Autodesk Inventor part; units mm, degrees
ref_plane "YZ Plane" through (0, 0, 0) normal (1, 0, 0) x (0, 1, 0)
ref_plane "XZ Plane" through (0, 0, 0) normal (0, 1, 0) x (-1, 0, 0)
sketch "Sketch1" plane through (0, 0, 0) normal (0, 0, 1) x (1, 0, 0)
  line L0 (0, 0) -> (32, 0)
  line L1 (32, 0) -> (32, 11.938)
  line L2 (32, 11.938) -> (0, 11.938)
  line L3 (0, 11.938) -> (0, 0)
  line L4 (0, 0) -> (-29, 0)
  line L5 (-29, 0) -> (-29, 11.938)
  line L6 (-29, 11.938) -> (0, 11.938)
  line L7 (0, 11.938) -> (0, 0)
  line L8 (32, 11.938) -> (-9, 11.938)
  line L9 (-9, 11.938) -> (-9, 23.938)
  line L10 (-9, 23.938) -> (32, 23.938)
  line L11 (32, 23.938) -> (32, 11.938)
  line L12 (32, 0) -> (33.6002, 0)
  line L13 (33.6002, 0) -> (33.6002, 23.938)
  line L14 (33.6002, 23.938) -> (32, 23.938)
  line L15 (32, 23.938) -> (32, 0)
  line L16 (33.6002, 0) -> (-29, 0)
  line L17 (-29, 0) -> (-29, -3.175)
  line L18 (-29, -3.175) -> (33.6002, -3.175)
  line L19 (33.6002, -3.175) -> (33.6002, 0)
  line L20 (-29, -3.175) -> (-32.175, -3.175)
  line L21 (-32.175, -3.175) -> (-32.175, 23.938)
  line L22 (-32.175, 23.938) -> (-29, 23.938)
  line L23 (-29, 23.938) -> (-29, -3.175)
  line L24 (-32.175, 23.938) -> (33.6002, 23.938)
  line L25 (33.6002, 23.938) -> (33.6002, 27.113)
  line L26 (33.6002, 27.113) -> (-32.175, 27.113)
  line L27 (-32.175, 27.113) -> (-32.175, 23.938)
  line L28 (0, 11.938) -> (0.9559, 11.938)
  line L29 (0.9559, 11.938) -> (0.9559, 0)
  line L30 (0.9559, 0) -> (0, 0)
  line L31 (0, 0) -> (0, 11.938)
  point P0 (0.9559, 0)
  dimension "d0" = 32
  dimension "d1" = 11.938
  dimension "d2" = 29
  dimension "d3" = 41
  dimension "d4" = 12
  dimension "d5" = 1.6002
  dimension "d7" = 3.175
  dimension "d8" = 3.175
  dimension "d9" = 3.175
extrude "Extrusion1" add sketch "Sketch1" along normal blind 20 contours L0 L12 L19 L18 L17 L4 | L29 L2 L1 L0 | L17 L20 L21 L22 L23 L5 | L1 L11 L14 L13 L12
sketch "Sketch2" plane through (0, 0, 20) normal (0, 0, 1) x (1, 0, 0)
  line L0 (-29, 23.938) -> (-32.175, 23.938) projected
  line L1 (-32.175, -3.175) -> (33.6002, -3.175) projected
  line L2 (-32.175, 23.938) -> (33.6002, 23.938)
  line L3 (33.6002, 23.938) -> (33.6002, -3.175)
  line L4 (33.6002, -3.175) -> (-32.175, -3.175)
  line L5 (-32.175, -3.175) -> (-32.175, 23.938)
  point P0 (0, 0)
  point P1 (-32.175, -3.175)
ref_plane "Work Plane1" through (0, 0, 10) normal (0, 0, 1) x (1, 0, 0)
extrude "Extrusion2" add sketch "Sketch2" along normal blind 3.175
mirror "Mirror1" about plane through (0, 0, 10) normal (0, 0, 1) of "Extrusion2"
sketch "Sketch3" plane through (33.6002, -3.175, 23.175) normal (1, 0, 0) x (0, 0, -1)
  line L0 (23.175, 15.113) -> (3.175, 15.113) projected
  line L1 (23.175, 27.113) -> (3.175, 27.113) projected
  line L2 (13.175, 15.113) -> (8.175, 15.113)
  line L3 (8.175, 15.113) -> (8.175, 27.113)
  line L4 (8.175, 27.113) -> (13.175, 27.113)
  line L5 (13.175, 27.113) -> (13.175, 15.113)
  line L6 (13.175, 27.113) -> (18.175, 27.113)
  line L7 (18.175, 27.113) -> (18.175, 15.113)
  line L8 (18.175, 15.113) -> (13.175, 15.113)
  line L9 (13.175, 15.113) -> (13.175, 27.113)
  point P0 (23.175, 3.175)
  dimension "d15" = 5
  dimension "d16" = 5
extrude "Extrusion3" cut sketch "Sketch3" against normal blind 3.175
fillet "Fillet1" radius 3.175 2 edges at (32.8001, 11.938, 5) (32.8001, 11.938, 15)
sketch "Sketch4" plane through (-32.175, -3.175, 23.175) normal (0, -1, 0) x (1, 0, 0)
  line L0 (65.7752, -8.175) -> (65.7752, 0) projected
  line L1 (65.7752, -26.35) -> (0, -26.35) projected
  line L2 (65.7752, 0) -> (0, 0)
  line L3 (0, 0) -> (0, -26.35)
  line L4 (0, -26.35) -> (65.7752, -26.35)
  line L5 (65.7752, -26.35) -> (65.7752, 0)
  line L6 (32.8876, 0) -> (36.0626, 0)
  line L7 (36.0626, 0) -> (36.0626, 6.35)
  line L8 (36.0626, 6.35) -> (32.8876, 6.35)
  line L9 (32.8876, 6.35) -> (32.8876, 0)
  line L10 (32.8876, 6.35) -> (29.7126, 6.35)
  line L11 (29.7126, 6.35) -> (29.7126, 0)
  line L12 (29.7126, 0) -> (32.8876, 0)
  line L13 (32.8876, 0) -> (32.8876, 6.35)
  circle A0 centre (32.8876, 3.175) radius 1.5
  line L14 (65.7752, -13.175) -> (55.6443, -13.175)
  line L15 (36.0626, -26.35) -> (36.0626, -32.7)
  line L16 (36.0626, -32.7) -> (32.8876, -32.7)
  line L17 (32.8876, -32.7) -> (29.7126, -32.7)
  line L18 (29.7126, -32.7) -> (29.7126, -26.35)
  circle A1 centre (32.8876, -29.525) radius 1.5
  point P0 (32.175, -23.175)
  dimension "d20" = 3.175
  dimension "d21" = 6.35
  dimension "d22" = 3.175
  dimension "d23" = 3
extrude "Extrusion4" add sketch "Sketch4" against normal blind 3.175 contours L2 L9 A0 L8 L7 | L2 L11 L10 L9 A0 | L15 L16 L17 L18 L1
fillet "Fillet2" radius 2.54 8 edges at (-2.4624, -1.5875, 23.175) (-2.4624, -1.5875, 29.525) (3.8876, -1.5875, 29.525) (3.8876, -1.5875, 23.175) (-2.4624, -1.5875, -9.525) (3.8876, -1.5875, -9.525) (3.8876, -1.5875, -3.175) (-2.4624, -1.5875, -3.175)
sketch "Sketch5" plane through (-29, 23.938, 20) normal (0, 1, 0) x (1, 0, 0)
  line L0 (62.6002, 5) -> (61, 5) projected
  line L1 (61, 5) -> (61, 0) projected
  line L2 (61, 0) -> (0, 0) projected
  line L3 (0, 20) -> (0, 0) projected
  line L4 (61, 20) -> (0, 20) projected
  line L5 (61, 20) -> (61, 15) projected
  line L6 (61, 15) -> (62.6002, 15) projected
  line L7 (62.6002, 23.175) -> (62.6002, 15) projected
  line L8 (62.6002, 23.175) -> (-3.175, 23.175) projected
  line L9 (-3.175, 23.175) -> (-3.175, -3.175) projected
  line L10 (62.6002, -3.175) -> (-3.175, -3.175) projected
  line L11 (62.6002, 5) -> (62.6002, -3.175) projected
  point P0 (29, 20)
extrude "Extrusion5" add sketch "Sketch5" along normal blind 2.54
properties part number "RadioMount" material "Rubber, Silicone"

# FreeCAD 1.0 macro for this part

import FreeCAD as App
import Part
import Sketcher
Q = App.Units.Quantity


def edges_at(feature, points):
    """Names of the edges that pass closest to the given points."""
    edges = feature.Shape.Edges
    near = lambda p: min(range(len(edges)), key=lambda i: edges[i].distToShape(Part.Vertex(*p))[0])
    return sorted({f"Edge{near(p) + 1}" for p in points})


def add_polygon(sketch, points):
    """Adds a closed chain of lines whose ends are joined by coincident constraints."""
    first, n = sketch.GeometryCount, len(points)
    for a, b in zip(points, points[1:] + points[:1]):
        sketch.addGeometry(Part.LineSegment(App.Vector(*a, 0), App.Vector(*b, 0)), False)
    for i in range(n):
        sketch.addConstraint(Sketcher.Constraint("Coincident", first + i, 2, first + (i + 1) % n, 1))

doc = App.newDocument("Part")
body = doc.addObject("PartDesign::Body", "Body")

sketch1 = doc.addObject("Sketcher::SketchObject", "Sketch")
body.addObject(sketch1)
sketch1.AttachmentSupport = (doc.XY_Plane, [""])
sketch1.MapMode = "FlatFace"
add_polygon(sketch1, [(0.9559, 0), (-29, 0), (-29, 23.938), (-32.175, 23.938), (-32.175, -3.175), (33.6002, -3.175), (33.6002, 23.938), (32, 23.938), (32, 11.938), (0.9559, 11.938)])
sketch1.addConstraint([
    Sketcher.Constraint("Horizontal", 0),
    Sketcher.Constraint("Vertical", 1),
    Sketcher.Constraint("Horizontal", 2),
    Sketcher.Constraint("Vertical", 3),
    Sketcher.Constraint("Horizontal", 4),
    Sketcher.Constraint("Vertical", 5),
    Sketcher.Constraint("Horizontal", 6),
    Sketcher.Constraint("Vertical", 7),
    Sketcher.Constraint("Horizontal", 8),
    Sketcher.Constraint("Vertical", 9),
    Sketcher.Constraint("PointOnObject", 0, 2, -1),
    Sketcher.Constraint("Horizontal", 2, 2, 5, 2),
    Sketcher.Constraint("DistanceY", 9, 2, 9, 1, Q("0.47 in")),
    Sketcher.Constraint("DistanceX", 2, 2, 2, 1, Q("0.125 in")),
    Sketcher.Constraint("DistanceX", 6, 2, 6, 1, Q("0.063 in")),
    Sketcher.Constraint("DistanceY", 3, 2, -1, 1, Q("0.125 in")),
    Sketcher.Constraint("DistanceY", 7, 2, 7, 1, 12.0),
    Sketcher.Constraint("DistanceX", 0, 2, -1, 1, 29.0),
    Sketcher.Constraint("DistanceX", -1, 1, 6, 2, 32.0),
    Sketcher.Constraint("DistanceX", 8, 2, 8, 1, Q("1.2222 in")),
])
pad1 = doc.addObject("PartDesign::Pad", "Pad")
body.addObject(pad1)
pad1.Profile = sketch1
pad1.Length = Q("0.7874016 in")

sketch2 = doc.addObject("Sketcher::SketchObject", "Sketch001")
body.addObject(sketch2)
sketch2.AttachmentSupport = (doc.XY_Plane, [""])
sketch2.MapMode = "FlatFace"
sketch2.AttachmentOffset = App.Placement(App.Vector(0, 0, 0.7874016 * 25.4), App.Rotation())
add_polygon(sketch2, [(33.6002, 23.938), (-32.175, 23.938), (-32.175, -3.175), (33.6002, -3.175)])
sketch2.addConstraint([
    Sketcher.Constraint("Horizontal", 0),
    Sketcher.Constraint("Vertical", 1),
    Sketcher.Constraint("Horizontal", 2),
    Sketcher.Constraint("Vertical", 3),
    Sketcher.Constraint("DistanceY", 1, 2, -1, 1, Q("0.125 in")),
    Sketcher.Constraint("DistanceX", 0, 2, 0, 1, 65.7752),
    Sketcher.Constraint("DistanceY", 1, 2, 1, 1, 27.113),
    Sketcher.Constraint("DistanceX", 0, 2, -1, 1, 32.175),
])
pad2 = doc.addObject("PartDesign::Pad", "Pad001")
body.addObject(pad2)
pad2.Profile = sketch2
pad2.Length = Q("0.125 in")
doc.recompute()

datumplane = doc.addObject("PartDesign::Plane", "DatumPlane")
body.addObject(datumplane)
datumplane.AttachmentSupport = (doc.XY_Plane, [""])
datumplane.MapMode = "FlatFace"
datumplane.AttachmentOffset = App.Placement(App.Vector(0, 0, 0.3937008 * 25.4), App.Rotation())
mirrored = doc.addObject("PartDesign::Mirrored", "Mirrored")
body.addObject(mirrored)
mirrored.Originals = [pad2]
mirrored.MirrorPlane = (datumplane, [""])
body.Tip = mirrored

sketch3 = doc.addObject("Sketcher::SketchObject", "Sketch002")
body.addObject(sketch3)
sketch3.AttachmentSupport = (doc.YZ_Plane, [""])
sketch3.MapMode = "FlatFace"
sketch3.AttachmentOffset = App.Placement(App.Vector(0, 0, 33.6002), App.Rotation())
add_polygon(sketch3, [(11.938, 5), (23.938, 5), (23.938, 15), (11.938, 15)])
sketch3.addConstraint([
    Sketcher.Constraint("Horizontal", 0),
    Sketcher.Constraint("Vertical", 1),
    Sketcher.Constraint("Horizontal", 2),
    Sketcher.Constraint("Vertical", 3),
    Sketcher.Constraint("DistanceY", -1, 1, 0, 2, 5.0),
    Sketcher.Constraint("DistanceX", -1, 1, 2, 2, Q("0.47 in")),
    Sketcher.Constraint("DistanceY", 1, 1, 1, 2, Q("0.3937 in")),
    Sketcher.Constraint("DistanceX", 0, 1, 0, 2, 12.0),
])
pocket1 = doc.addObject("PartDesign::Pocket", "Pocket")
body.addObject(pocket1)
pocket1.Profile = sketch3
pocket1.Length = Q("0.125 in")
doc.recompute()

fillet = doc.addObject("PartDesign::Fillet", "Fillet")
body.addObject(fillet)
fillet.Base = (pocket1, edges_at(pocket1, [(32.8, 11.938, 5), (32.8, 11.938, 15)]))
fillet.Radius = Q("0.125 in")

sketch4 = doc.addObject("Sketcher::SketchObject", "Sketch003")
body.addObject(sketch4)
sketch4.AttachmentSupport = (doc.XZ_Plane, [""])
sketch4.MapMode = "FlatFace"
sketch4.AttachmentOffset = App.Placement(App.Vector(0, 0, 0.125 * 25.4), App.Rotation())
add_polygon(sketch4, [(3.8876, 23.175), (3.8876, 29.525), (-2.4624, 29.525), (-2.4624, 23.175)])
sketch4.addGeometry(Part.Circle(App.Vector(0.7126, 26.35, 0), App.Vector(0, 0, 1), 1.5), False)
add_polygon(sketch4, [(3.8876, -9.525), (3.8876, -3.175), (-2.4624, -3.175), (-2.4624, -9.525)])
sketch4.addGeometry(Part.Circle(App.Vector(0.7126, -6.35, 0), App.Vector(0, 0, 1), 1.5), False)
sketch4.addConstraint([
    Sketcher.Constraint("Vertical", 0),
    Sketcher.Constraint("Horizontal", 1),
    Sketcher.Constraint("Vertical", 2),
    Sketcher.Constraint("Horizontal", 3),
    Sketcher.Constraint("Vertical", 5),
    Sketcher.Constraint("Horizontal", 6),
    Sketcher.Constraint("Vertical", 7),
    Sketcher.Constraint("Horizontal", 8),
    Sketcher.Constraint("Equal", 4, 9),
    Sketcher.Constraint("Vertical", 4, 3, 9, 3),
    Sketcher.Constraint("Vertical", 3, 2, 5, 2),
    Sketcher.Constraint("Vertical", 2, 2, 6, 2),
    Sketcher.Constraint("Equal", 8, 0),
    Sketcher.Constraint("Equal", 2, 5),
    Sketcher.Constraint("Diameter", 4, Q("0.1181 in")),
    Sketcher.Constraint("DistanceX", 1, 2, 1, 1, Q("0.25 in")),
    Sketcher.Constraint("DistanceY", 9, 3, -1, 1, Q("0.25 in")),
    Sketcher.Constraint("DistanceY", 5, 2, -1, 1, Q("0.125 in")),
    Sketcher.Constraint("DistanceX", 4, 3, 0, 2, Q("0.125 in")),
    Sketcher.Constraint("DistanceY", 4, 3, 0, 2, Q("0.125 in")),
    Sketcher.Constraint("DistanceY", -1, 1, 4, 3, Q("1.0374 in")),
    Sketcher.Constraint("DistanceX", -1, 1, 4, 3, 0.7126),
])
pad3 = doc.addObject("PartDesign::Pad", "Pad002")
body.addObject(pad3)
pad3.Profile = sketch4
pad3.Length = Q("0.125 in")
pad3.Reversed = True
doc.recompute()

fillet2 = doc.addObject("PartDesign::Fillet", "Fillet001")
body.addObject(fillet2)
fillet2.Base = (pad3, edges_at(pad3, [
    (-2.462, -1.587, 23.175),
    (-2.462, -1.587, 29.525),
    (3.888, -1.587, 29.525),
    (3.888, -1.587, 23.175),
    (-2.462, -1.587, -9.525),
    (3.888, -1.587, -9.525),
    (3.888, -1.587, -3.175),
    (-2.462, -1.587, -3.175),
]))
fillet2.Radius = Q("0.1 in")

sketch5 = doc.addObject("Sketcher::SketchObject", "Sketch004")
body.addObject(sketch5)
sketch5.AttachmentSupport = (doc.XZ_Plane, [""])
sketch5.MapMode = "FlatFace"
sketch5.AttachmentOffset = App.Placement(App.Vector(0, 0, -23.938), App.Rotation())
add_polygon(sketch5, [(33.6002, 23.175), (33.6002, 15), (32, 15), (32, 20), (-29, 20), (-29, 0), (32, 0), (32, 5), (33.6002, 5), (33.6002, -3.175), (-32.175, -3.175), (-32.175, 23.175)])
sketch5.addConstraint([
    Sketcher.Constraint("Vertical", 0),
    Sketcher.Constraint("Horizontal", 1),
    Sketcher.Constraint("Vertical", 2),
    Sketcher.Constraint("Horizontal", 3),
    Sketcher.Constraint("Vertical", 4),
    Sketcher.Constraint("Horizontal", 5),
    Sketcher.Constraint("Vertical", 6),
    Sketcher.Constraint("Horizontal", 7),
    Sketcher.Constraint("Vertical", 8),
    Sketcher.Constraint("Horizontal", 9),
    Sketcher.Constraint("Vertical", 10),
    Sketcher.Constraint("Horizontal", 11),
    Sketcher.Constraint("PointOnObject", 4, 2, -1),
    Sketcher.Constraint("Vertical", 2, 2, 5, 2),
    Sketcher.Constraint("Vertical", 0, 2, 7, 2),
    Sketcher.Constraint("Equal", 2, 6),
    Sketcher.Constraint("Equal", 0, 8),
    Sketcher.Constraint("DistanceX", 1, 2, 1, 1, Q("0.063 in")),
    Sketcher.Constraint("DistanceY", 4, 2, 4, 1, Q("0.7874 in")),
    Sketcher.Constraint("DistanceY", 10, 1, 10, 2, Q("1.0374 in")),
    Sketcher.Constraint("DistanceX", 9, 2, 4, 2, Q("0.125 in")),
    Sketcher.Constraint("DistanceX", 3, 2, 3, 1, 61.0),
    Sketcher.Constraint("DistanceY", 0, 2, 0, 1, 8.175),
    Sketcher.Constraint("DistanceX", -1, 1, 0, 2, 33.6002),
])
pad4 = doc.addObject("PartDesign::Pad", "Pad003")
body.addObject(pad4)
pad4.Profile = sketch5
pad4.Length = Q("0.1 in")
pad4.Reversed = True

doc.recompute()
